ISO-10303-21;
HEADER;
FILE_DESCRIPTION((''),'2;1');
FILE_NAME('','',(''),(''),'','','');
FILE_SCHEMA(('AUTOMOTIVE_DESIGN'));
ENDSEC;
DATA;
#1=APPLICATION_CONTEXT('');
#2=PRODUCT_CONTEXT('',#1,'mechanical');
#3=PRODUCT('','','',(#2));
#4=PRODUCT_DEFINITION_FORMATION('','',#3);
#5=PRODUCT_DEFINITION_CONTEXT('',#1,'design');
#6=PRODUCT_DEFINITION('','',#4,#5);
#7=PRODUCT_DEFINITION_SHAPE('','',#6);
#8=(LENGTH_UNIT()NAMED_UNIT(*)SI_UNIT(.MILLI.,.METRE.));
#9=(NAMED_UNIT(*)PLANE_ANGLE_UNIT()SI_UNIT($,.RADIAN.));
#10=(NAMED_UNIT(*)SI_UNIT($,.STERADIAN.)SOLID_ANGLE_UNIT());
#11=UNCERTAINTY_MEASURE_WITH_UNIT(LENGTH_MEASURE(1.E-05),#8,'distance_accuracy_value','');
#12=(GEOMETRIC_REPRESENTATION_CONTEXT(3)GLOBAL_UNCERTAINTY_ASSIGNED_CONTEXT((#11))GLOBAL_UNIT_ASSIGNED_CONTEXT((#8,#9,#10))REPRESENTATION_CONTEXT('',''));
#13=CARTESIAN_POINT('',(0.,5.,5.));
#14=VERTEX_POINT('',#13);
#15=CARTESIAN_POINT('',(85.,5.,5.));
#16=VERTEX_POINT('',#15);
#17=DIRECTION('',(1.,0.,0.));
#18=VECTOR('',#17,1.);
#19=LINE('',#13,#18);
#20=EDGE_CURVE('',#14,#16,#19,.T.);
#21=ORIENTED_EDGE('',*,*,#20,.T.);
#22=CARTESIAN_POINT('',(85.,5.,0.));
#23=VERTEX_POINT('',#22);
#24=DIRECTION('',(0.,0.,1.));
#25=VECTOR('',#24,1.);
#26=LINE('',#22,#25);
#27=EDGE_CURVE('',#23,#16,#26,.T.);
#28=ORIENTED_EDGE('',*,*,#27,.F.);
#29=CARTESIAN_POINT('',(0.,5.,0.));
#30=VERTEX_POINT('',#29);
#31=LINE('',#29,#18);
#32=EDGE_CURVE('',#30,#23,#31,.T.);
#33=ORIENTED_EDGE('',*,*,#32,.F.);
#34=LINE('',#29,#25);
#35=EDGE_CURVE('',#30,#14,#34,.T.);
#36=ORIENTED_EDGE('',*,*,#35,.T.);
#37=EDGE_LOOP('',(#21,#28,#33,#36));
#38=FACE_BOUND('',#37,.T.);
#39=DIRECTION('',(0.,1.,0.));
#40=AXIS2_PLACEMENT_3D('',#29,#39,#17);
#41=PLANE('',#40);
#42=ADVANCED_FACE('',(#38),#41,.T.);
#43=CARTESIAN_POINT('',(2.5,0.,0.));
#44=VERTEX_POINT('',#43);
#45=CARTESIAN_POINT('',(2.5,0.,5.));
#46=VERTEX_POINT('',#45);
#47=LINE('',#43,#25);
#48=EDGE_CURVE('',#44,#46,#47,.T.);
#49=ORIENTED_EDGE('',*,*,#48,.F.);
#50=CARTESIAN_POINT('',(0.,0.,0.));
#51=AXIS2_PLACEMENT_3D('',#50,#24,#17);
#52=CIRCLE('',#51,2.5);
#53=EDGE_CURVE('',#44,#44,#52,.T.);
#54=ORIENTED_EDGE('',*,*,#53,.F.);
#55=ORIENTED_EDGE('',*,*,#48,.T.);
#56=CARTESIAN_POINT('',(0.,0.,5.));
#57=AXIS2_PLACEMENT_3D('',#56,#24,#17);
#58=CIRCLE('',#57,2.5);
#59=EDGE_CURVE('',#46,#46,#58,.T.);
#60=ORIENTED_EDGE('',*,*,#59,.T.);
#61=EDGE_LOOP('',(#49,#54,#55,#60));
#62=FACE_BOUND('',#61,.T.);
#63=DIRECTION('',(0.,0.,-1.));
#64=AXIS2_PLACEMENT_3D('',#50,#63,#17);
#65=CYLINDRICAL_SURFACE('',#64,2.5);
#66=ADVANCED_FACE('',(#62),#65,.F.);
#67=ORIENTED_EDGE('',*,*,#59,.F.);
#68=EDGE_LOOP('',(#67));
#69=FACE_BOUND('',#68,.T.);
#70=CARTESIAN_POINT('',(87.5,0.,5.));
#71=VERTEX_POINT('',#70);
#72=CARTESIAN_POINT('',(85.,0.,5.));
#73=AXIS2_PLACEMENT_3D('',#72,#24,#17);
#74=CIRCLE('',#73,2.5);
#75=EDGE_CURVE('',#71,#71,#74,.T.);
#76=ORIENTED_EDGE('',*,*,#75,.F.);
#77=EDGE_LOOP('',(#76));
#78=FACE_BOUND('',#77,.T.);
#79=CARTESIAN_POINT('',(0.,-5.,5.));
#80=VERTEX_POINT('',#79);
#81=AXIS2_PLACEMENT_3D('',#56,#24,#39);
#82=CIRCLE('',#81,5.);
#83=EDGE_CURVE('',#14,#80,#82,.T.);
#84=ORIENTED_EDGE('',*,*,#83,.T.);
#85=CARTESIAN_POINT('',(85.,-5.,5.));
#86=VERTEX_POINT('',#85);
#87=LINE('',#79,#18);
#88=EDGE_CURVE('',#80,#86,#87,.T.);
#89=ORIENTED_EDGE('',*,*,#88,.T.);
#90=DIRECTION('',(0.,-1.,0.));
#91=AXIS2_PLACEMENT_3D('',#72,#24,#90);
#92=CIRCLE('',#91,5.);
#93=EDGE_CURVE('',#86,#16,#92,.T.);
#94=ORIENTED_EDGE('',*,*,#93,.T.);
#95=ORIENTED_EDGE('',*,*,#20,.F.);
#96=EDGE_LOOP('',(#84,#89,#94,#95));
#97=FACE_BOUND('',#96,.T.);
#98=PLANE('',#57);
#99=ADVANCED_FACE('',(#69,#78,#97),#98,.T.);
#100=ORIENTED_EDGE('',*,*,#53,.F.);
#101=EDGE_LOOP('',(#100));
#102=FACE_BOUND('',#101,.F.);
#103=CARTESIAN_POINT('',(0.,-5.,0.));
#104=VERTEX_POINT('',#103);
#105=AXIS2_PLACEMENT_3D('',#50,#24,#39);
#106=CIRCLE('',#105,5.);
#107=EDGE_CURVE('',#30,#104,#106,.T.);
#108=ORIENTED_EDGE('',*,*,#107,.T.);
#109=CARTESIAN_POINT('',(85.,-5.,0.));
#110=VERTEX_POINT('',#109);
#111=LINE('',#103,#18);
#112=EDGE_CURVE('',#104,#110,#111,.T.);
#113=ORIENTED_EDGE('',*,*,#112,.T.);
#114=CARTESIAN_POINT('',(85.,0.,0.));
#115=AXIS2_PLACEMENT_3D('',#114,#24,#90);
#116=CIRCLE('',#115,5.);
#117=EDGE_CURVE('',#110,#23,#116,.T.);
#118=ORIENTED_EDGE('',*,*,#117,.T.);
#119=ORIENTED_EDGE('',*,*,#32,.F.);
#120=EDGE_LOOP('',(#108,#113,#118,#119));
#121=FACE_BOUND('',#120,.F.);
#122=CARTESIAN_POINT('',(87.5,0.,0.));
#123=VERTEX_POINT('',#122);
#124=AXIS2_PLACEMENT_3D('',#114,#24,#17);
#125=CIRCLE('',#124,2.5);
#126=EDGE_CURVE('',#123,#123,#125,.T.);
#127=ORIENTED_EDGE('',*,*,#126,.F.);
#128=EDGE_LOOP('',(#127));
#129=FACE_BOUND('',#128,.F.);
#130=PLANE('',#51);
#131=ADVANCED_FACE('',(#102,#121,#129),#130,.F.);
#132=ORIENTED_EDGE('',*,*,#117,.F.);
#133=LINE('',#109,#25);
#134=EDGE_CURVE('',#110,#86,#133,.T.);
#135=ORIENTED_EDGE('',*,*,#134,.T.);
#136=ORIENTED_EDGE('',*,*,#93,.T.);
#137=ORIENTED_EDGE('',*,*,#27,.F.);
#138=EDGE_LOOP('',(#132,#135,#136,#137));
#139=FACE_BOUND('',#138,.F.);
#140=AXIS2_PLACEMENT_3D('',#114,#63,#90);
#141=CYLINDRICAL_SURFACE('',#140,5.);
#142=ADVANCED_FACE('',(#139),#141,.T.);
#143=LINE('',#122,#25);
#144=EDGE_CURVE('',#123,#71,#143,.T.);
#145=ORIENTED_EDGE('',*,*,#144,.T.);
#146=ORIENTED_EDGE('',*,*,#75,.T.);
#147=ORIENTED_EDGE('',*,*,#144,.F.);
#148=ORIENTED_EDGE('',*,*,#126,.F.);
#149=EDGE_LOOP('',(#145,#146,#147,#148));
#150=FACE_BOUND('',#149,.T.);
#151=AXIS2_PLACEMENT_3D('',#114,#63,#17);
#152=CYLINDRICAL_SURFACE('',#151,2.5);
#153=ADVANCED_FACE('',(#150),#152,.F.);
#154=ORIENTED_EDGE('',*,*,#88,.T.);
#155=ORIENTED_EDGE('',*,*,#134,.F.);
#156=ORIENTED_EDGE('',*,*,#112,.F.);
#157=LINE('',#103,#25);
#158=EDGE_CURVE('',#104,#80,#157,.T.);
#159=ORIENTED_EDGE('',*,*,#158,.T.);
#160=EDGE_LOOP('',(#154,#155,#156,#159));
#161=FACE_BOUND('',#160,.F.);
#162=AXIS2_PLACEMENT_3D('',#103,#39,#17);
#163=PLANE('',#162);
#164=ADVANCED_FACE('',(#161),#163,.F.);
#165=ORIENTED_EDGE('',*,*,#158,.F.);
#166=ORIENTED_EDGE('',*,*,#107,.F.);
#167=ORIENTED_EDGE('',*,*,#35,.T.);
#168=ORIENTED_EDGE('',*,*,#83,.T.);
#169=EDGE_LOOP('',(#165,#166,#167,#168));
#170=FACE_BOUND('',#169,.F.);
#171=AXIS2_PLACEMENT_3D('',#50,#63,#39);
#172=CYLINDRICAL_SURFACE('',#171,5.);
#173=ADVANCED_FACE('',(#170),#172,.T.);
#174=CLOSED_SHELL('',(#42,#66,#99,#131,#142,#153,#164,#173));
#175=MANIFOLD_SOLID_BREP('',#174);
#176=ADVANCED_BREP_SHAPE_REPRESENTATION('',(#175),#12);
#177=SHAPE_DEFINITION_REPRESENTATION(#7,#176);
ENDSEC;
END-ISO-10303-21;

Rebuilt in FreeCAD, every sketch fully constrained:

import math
import FreeCAD as App
import Part
import Sketcher
Q = App.Units.Quantity

doc = App.newDocument("Part")
body = doc.addObject("PartDesign::Body", "Body")

sketch1 = doc.addObject("Sketcher::SketchObject", "Sketch")
body.addObject(sketch1)
sketch1.AttachmentSupport = (doc.XY_Plane, [""])
sketch1.MapMode = "FlatFace"
sketch1.addGeometry([
    Part.LineSegment(App.Vector(85, 5, 0), App.Vector(0, 5, 0)),
    Part.ArcOfCircle(Part.Circle(App.Vector(0, 0, 0), App.Vector(0, 0, 1), 5), math.radians(90), math.radians(270)),
    Part.LineSegment(App.Vector(0, -5, 0), App.Vector(85, -5, 0)),
    Part.ArcOfCircle(Part.Circle(App.Vector(85, 0, 0), App.Vector(0, 0, 1), 5), math.radians(-90), math.radians(90)),
    Part.Circle(App.Vector(0, 0, 0), App.Vector(0, 0, 1), 2.5),
    Part.Circle(App.Vector(85, 0, 0), App.Vector(0, 0, 1), 2.5),
], False)
sketch1.addConstraint([
    Sketcher.Constraint("Tangent", 0, 2, 1, 1),
    Sketcher.Constraint("Tangent", 1, 2, 2, 1),
    Sketcher.Constraint("Tangent", 2, 2, 3, 1),
    Sketcher.Constraint("Tangent", 3, 2, 0, 1),
    Sketcher.Constraint("Horizontal", 0),
    Sketcher.Constraint("Horizontal", 2),
    Sketcher.Constraint("Coincident", 1, 3, -1, 1),
    Sketcher.Constraint("Coincident", 4, 3, -1, 1),
    Sketcher.Constraint("Coincident", 5, 3, 3, 3),
    Sketcher.Constraint("Equal", 4, 5),
    Sketcher.Constraint("Diameter", 4, Q("5 mm")),
    Sketcher.Constraint("Radius", 1, Q("5 mm")),
    Sketcher.Constraint("DistanceX", 0, 2, 0, 1, Q("85 mm")),
])
pad1 = doc.addObject("PartDesign::Pad", "Pad")
body.addObject(pad1)
pad1.Profile = sketch1
pad1.Length = 5

doc.recompute()
